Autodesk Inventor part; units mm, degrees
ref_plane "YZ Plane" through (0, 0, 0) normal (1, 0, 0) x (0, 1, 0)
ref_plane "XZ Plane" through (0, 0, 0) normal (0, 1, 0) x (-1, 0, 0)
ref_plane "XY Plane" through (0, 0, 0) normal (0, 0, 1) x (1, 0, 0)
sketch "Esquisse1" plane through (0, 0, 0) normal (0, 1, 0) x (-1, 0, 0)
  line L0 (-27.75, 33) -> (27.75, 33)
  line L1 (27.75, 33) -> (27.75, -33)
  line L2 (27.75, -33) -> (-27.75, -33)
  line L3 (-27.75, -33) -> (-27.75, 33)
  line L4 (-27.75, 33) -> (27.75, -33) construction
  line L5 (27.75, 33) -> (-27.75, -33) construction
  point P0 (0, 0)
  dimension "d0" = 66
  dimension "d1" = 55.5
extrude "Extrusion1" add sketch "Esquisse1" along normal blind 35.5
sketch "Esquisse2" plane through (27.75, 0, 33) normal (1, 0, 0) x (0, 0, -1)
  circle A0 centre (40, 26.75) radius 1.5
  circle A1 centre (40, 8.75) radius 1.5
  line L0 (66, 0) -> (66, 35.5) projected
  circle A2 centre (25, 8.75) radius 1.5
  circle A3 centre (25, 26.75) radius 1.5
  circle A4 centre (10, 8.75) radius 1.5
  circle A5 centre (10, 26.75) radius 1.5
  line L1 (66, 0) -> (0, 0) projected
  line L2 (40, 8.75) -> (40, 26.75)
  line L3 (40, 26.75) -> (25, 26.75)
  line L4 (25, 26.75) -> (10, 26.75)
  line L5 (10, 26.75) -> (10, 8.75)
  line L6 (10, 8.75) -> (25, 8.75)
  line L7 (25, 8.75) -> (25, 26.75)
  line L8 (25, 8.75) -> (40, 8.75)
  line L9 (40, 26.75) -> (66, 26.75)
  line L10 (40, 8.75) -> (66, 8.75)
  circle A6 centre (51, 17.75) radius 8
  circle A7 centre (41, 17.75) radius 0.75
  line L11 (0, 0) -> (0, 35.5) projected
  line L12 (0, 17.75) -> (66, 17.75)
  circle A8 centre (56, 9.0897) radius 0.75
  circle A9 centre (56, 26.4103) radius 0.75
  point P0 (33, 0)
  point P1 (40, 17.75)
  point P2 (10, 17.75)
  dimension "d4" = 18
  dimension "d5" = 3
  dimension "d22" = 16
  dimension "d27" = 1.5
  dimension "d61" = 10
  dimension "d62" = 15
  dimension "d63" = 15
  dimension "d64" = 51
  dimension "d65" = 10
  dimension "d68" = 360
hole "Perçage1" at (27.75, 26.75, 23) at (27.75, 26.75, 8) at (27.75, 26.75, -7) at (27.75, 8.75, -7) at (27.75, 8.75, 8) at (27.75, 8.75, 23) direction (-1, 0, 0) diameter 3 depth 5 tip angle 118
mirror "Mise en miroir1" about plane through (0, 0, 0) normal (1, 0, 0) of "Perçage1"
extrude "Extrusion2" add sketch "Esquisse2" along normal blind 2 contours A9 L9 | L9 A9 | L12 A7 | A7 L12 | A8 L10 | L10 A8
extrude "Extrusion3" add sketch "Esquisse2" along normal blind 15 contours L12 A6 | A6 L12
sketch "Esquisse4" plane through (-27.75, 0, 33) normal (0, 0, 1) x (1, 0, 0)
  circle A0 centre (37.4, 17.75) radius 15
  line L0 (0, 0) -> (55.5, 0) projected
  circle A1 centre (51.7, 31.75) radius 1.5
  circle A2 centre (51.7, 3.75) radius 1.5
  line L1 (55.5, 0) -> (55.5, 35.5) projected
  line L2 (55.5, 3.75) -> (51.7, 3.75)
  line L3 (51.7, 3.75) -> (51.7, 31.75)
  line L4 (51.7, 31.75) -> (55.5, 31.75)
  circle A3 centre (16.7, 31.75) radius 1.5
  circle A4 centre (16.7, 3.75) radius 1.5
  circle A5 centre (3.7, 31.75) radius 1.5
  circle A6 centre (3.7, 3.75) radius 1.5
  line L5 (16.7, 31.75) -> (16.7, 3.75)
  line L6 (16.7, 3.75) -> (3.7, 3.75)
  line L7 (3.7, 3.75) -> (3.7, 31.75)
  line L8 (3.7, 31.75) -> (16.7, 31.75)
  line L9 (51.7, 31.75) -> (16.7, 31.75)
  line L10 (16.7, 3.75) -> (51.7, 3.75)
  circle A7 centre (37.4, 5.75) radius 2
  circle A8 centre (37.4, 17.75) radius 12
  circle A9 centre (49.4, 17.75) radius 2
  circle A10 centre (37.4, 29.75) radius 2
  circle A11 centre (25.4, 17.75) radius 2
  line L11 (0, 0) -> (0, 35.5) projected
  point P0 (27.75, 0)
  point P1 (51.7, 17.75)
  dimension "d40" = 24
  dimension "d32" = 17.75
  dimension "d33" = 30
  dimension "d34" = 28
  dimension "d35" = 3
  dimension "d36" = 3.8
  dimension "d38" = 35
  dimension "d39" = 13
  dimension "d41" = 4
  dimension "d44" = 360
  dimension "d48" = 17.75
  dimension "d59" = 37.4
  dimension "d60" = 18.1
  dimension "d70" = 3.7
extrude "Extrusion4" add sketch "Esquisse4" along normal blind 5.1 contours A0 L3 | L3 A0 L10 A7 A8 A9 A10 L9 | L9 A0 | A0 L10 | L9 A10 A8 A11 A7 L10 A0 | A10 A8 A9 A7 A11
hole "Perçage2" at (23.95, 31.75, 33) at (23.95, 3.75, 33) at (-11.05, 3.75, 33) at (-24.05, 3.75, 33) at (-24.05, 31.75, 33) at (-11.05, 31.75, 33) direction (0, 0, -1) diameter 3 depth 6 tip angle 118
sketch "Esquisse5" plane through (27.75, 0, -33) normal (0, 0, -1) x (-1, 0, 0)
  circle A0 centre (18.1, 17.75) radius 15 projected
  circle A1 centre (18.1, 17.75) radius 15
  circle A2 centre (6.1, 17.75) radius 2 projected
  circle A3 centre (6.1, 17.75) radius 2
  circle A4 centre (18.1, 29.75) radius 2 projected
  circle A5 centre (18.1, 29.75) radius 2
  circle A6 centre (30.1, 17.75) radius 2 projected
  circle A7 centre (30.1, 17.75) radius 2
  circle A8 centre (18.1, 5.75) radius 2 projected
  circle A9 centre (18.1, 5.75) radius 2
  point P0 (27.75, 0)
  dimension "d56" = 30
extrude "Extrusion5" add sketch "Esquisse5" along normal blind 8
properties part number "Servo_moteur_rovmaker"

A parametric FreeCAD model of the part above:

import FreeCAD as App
import Part
import Sketcher
from FreeCAD import Vector
Q = App.Units.Quantity

doc = App.newDocument("Part")
body = doc.addObject("PartDesign::Body", "Body")

# Sketch on XZ plane
sketch1 = body.newObject("Sketcher::SketchObject", "Sketch")
sketch1.AttachmentSupport = (doc.getObject("XZ_Plane"), [""])
sketch1.MapMode = "FlatFace"
sketch1.addGeometry([
    Part.LineSegment(Vector(-28, 33, 0), Vector(28, 33, 0)),
    Part.LineSegment(Vector(28, 33, 0), Vector(28, -33, 0)),
    Part.LineSegment(Vector(28, -33, 0), Vector(-28, -33, 0)),
    Part.LineSegment(Vector(-28, -33, 0), Vector(-28, 33, 0)),
], False)
sketch1.addConstraint([
    Sketcher.Constraint("Coincident", 0, 2, 1, 1),
    Sketcher.Constraint("Coincident", 1, 2, 2, 1),
    Sketcher.Constraint("Coincident", 2, 2, 3, 1),
    Sketcher.Constraint("Coincident", 3, 2, 0, 1),
    Sketcher.Constraint("Horizontal", 0),
    Sketcher.Constraint("Vertical", 1),
    Sketcher.Constraint("Horizontal", 2),
    Sketcher.Constraint("Vertical", 3),
    Sketcher.Constraint("Symmetric", 0, 2, 2, 2, -1, 1),
    Sketcher.Constraint("DistanceY", 1, 2, 1, 1, Q("66 mm")),
    Sketcher.Constraint("DistanceX", 0, 1, 0, 2, Q("55.5 mm")),
])
pad1 = body.newObject("PartDesign::Pad", "Pad")
pad1.Profile = sketch1
pad1.Length = 35.5
pad1.Reversed = True

# Sketch on YZ plane
sketch2 = body.newObject("Sketcher::SketchObject", "Sketch001")
sketch2.AttachmentSupport = (doc.getObject("YZ_Plane"), [""])
sketch2.MapMode = "FlatFace"
sketch2.AttachmentOffset = App.Placement(Vector(0, 0, 27.75), App.Rotation())
sketch2.addGeometry([
    Part.Circle(Vector(26.8, 23, 0), Vector(0, 0, 1), 1.5),  # 0
    Part.Circle(Vector(26.8, 8, 0), Vector(0, 0, 1), 1.5),  # 1
    Part.Circle(Vector(26.8, -7, 0), Vector(0, 0, 1), 1.5),  # 2
    Part.Circle(Vector(8.8, -7, 0), Vector(0, 0, 1), 1.5),  # 3
    Part.Circle(Vector(8.8, 8, 0), Vector(0, 0, 1), 1.5),  # 4
    Part.Circle(Vector(8.8, 23, 0), Vector(0, 0, 1), 1.5),  # 5
], False)
sketch2.addConstraint([
    Sketcher.Constraint("Equal", 0, 1),
    Sketcher.Constraint("Equal", 1, 2),
    Sketcher.Constraint("Equal", 2, 3),
    Sketcher.Constraint("Equal", 3, 4),
    Sketcher.Constraint("Equal", 4, 5),
    Sketcher.Constraint("Horizontal", 2, 3, 3, 3),
    Sketcher.Constraint("Horizontal", 1, 3, 4, 3),
    Sketcher.Constraint("Horizontal", 0, 3, 5, 3),
    Sketcher.Constraint("Vertical", 0, 3, 1, 3),
    Sketcher.Constraint("Vertical", 1, 3, 2, 3),
    Sketcher.Constraint("Vertical", 3, 3, 4, 3),
    Sketcher.Constraint("Vertical", 4, 3, 5, 3),
    Sketcher.Constraint("Diameter", 0, Q("3 mm")),
    Sketcher.Constraint("DistanceY", -1, 1, 0, 3, Q("23 mm")),
    Sketcher.Constraint("DistanceY", -1, 1, 1, 3, Q("8 mm")),
    Sketcher.Constraint("DistanceY", 2, 3, -1, 1, Q("7 mm")),
    Sketcher.Constraint("DistanceX", 3, 3, 2, 3, Q("18 mm")),
    Sketcher.Constraint("DistanceX", -1, 1, 0, 3, Q("26.75 mm")),
])
doc.recompute()
hole = body.newObject("PartDesign::Hole", "Hole")
hole.Profile = sketch2
hole.ThreadType = "None"
hole.Diameter = 3
hole.DepthType = "Dimension"
hole.Depth = 5
hole.DrillPoint = "Angled"
hole.DrillPointAngle = 118
doc.recompute()

mirrored = body.newObject("PartDesign::Mirrored", "Mirrored")
mirrored.Originals = [hole]
mirrored.MirrorPlane = (doc.getObject("YZ_Plane"), [""])
body.Tip = mirrored

# Sketch on YZ plane
sketch3 = body.newObject("Sketcher::SketchObject", "Sketch002")
sketch3.AttachmentSupport = (doc.getObject("YZ_Plane"), [""])
sketch3.MapMode = "FlatFace"
sketch3.AttachmentOffset = App.Placement(Vector(0, 0, 27.75), App.Rotation())
sketch3.addGeometry([
    Part.Circle(Vector(26.4, -23, 0), Vector(0, 0, 1), 0.8),
    Part.Circle(Vector(17.8, -8, 0), Vector(0, 0, 1), 0.8),
    Part.Circle(Vector(9.1, -23, 0), Vector(0, 0, 1), 0.8),
], False)
sketch3.addConstraint([
    Sketcher.Constraint("Equal", 0, 1),
    Sketcher.Constraint("Equal", 1, 2),
    Sketcher.Constraint("Horizontal", 0, 3, 2, 3),
    Sketcher.Constraint("Diameter", 0, Q("1.5 mm")),
    Sketcher.Constraint("DistanceY", 0, 3, 1, 3, Q("15 mm")),
    Sketcher.Constraint("DistanceY", 0, 3, -1, 1, Q("23 mm")),
    Sketcher.Constraint("DistanceX", -1, 1, 1, 3, Q("17.75 mm")),
    Sketcher.Constraint("DistanceX", -1, 1, 0, 3, Q("26.4103 mm")),
    Sketcher.Constraint("DistanceX", -1, 1, 2, 3, Q("9.0897 mm")),
])
pad2 = body.newObject("PartDesign::Pad", "Pad001")
pad2.Profile = sketch3
pad2.Length = 2

# Sketch on YZ plane
sketch4 = body.newObject("Sketcher::SketchObject", "Sketch003")
sketch4.AttachmentSupport = (doc.getObject("YZ_Plane"), [""])
sketch4.MapMode = "FlatFace"
sketch4.AttachmentOffset = App.Placement(Vector(0, 0, 27.75), App.Rotation())
sketch4.addGeometry(Part.Circle(Vector(18, -18, 0), Vector(0, 0, 1), 8), False)
sketch4.addConstraint([
    Sketcher.Constraint("Diameter", 0, Q("16 mm")),
    Sketcher.Constraint("DistanceY", 0, 3, -1, 1, Q("18 mm")),
    Sketcher.Constraint("DistanceX", -1, 1, 0, 3, Q("17.75 mm")),
])
pad3 = body.newObject("PartDesign::Pad", "Pad002")
pad3.Profile = sketch4
pad3.Length = 15

# Sketch on XY plane
sketch5 = body.newObject("Sketcher::SketchObject", "Sketch004")
sketch5.AttachmentSupport = (doc.getObject("XY_Plane"), [""])
sketch5.MapMode = "FlatFace"
sketch5.AttachmentOffset = App.Placement(Vector(0, 0, 33), App.Rotation())
sketch5.addGeometry([
    Part.Circle(Vector(9.7, 17.8, 0), Vector(0, 0, 1), 15),  # 0
    Part.Circle(Vector(9.7, 5.8, 0), Vector(0, 0, 1), 2),  # 1
    Part.Circle(Vector(21.6, 17.8, 0), Vector(0, 0, 1), 2),  # 2
    Part.Circle(Vector(9.7, 29.8, 0), Vector(0, 0, 1), 2),  # 3
    Part.Circle(Vector(-2.4, 17.8, 0), Vector(0, 0, 1), 2),  # 4
], False)
sketch5.addConstraint([
    Sketcher.Constraint("Equal", 1, 2),
    Sketcher.Constraint("Equal", 2, 3),
    Sketcher.Constraint("Equal", 3, 4),
    Sketcher.Constraint("Horizontal", 0, 3, 2, 3),
    Sketcher.Constraint("Horizontal", 2, 3, 4, 3),
    Sketcher.Constraint("Vertical", 0, 3, 1, 3),
    Sketcher.Constraint("Vertical", 1, 3, 3, 3),
    Sketcher.Constraint("Diameter", 0, Q("30 mm")),
    Sketcher.Constraint("Diameter", 1, Q("4 mm")),
    Sketcher.Constraint("DistanceY", 1, 3, 3, 3, Q("24 mm")),
    Sketcher.Constraint("DistanceX", 4, 3, 2, 3, Q("24 mm")),
    Sketcher.Constraint("DistanceY", -1, 1, 0, 3, Q("17.75 mm")),
    Sketcher.Constraint("DistanceY", 1, 3, 0, 3, Q("12 mm")),
    Sketcher.Constraint("DistanceX", 0, 3, 2, 3, Q("12 mm")),
    Sketcher.Constraint("DistanceX", -1, 1, 0, 3, Q("9.65 mm")),
])
pad4 = body.newObject("PartDesign::Pad", "Pad003")
pad4.Profile = sketch5
pad4.Length = 5.1

# Sketch on XY plane
sketch6 = body.newObject("Sketcher::SketchObject", "Sketch005")
sketch6.AttachmentSupport = (doc.getObject("XY_Plane"), [""])
sketch6.MapMode = "FlatFace"
sketch6.AttachmentOffset = App.Placement(Vector(0, 0, 33), App.Rotation())
sketch6.addGeometry([
    Part.Circle(Vector(23.9, 31.8, 0), Vector(0, 0, 1), 1.5),  # 0
    Part.Circle(Vector(23.9, 3.8, 0), Vector(0, 0, 1), 1.5),  # 1
    Part.Circle(Vector(-11.1, 3.8, 0), Vector(0, 0, 1), 1.5),  # 2
    Part.Circle(Vector(-24.1, 3.8, 0), Vector(0, 0, 1), 1.5),  # 3
    Part.Circle(Vector(-24.1, 31.8, 0), Vector(0, 0, 1), 1.5),  # 4
    Part.Circle(Vector(-11.1, 31.8, 0), Vector(0, 0, 1), 1.5),  # 5
], False)
sketch6.addConstraint([
    Sketcher.Constraint("Equal", 0, 1),
    Sketcher.Constraint("Equal", 1, 2),
    Sketcher.Constraint("Equal", 2, 3),
    Sketcher.Constraint("Equal", 3, 4),
    Sketcher.Constraint("Equal", 4, 5),
    Sketcher.Constraint("Horizontal", 1, 3, 2, 3),
    Sketcher.Constraint("Horizontal", 2, 3, 3, 3),
    Sketcher.Constraint("Horizontal", 0, 3, 4, 3),
    Sketcher.Constraint("Horizontal", 4, 3, 5, 3),
    Sketcher.Constraint("Vertical", 0, 3, 1, 3),
    Sketcher.Constraint("Vertical", 3, 3, 4, 3),
    Sketcher.Constraint("Vertical", 2, 3, 5, 3),
    Sketcher.Constraint("Diameter", 0, Q("3 mm")),
    Sketcher.Constraint("DistanceY", 1, 3, 0, 3, Q("28 mm")),
    Sketcher.Constraint("DistanceX", 2, 3, 1, 3, Q("35 mm")),
    Sketcher.Constraint("DistanceX", 3, 3, 2, 3, Q("13 mm")),
    Sketcher.Constraint("DistanceX", -1, 1, 0, 3, Q("23.95 mm")),
    Sketcher.Constraint("DistanceY", -1, 1, 0, 3, Q("31.75 mm")),
])
doc.recompute()
hole2 = body.newObject("PartDesign::Hole", "Hole001")
hole2.Profile = sketch6
hole2.ThreadType = "None"
hole2.Diameter = 3
hole2.DepthType = "Dimension"
hole2.Depth = 6
hole2.DrillPoint = "Angled"
hole2.DrillPointAngle = 118

# Sketch on XY plane
sketch7 = body.newObject("Sketcher::SketchObject", "Sketch006")
sketch7.AttachmentSupport = (doc.getObject("XY_Plane"), [""])
sketch7.MapMode = "FlatFace"
sketch7.AttachmentOffset = App.Placement(Vector(0, 0, -33), App.Rotation())
sketch7.addGeometry([
    Part.Circle(Vector(9.7, 17.8, 0), Vector(0, 0, 1), 15),  # 0
    Part.Circle(Vector(9.7, 5.8, 0), Vector(0, 0, 1), 2),  # 1
    Part.Circle(Vector(21.6, 17.8, 0), Vector(0, 0, 1), 2),  # 2
    Part.Circle(Vector(-2.4, 17.8, 0), Vector(0, 0, 1), 2),  # 3
    Part.Circle(Vector(9.7, 29.8, 0), Vector(0, 0, 1), 2),  # 4
], False)
sketch7.addConstraint([
    Sketcher.Constraint("Equal", 1, 2),
    Sketcher.Constraint("Equal", 2, 3),
    Sketcher.Constraint("Equal", 3, 4),
    Sketcher.Constraint("Horizontal", 0, 3, 2, 3),
    Sketcher.Constraint("Horizontal", 2, 3, 3, 3),
    Sketcher.Constraint("Vertical", 0, 3, 1, 3),
    Sketcher.Constraint("Vertical", 1, 3, 4, 3),
    Sketcher.Constraint("Diameter", 0, Q("30 mm")),
    Sketcher.Constraint("Diameter", 1, Q("4 mm")),
    Sketcher.Constraint("DistanceY", 1, 3, 0, 3, Q("12 mm")),
    Sketcher.Constraint("DistanceX", 0, 3, 2, 3, Q("12 mm")),
    Sketcher.Constraint("DistanceX", 3, 3, 0, 3, Q("12 mm")),
    Sketcher.Constraint("DistanceY", 0, 3, 4, 3, Q("12 mm")),
    Sketcher.Constraint("DistanceX", -1, 1, 0, 3, Q("9.65 mm")),
    Sketcher.Constraint("DistanceY", -1, 1, 0, 3, Q("17.75 mm")),
])
pad5 = body.newObject("PartDesign::Pad", "Pad004")
pad5.Profile = sketch7
pad5.Length = 8
pad5.Reversed = True

doc.recompute()
